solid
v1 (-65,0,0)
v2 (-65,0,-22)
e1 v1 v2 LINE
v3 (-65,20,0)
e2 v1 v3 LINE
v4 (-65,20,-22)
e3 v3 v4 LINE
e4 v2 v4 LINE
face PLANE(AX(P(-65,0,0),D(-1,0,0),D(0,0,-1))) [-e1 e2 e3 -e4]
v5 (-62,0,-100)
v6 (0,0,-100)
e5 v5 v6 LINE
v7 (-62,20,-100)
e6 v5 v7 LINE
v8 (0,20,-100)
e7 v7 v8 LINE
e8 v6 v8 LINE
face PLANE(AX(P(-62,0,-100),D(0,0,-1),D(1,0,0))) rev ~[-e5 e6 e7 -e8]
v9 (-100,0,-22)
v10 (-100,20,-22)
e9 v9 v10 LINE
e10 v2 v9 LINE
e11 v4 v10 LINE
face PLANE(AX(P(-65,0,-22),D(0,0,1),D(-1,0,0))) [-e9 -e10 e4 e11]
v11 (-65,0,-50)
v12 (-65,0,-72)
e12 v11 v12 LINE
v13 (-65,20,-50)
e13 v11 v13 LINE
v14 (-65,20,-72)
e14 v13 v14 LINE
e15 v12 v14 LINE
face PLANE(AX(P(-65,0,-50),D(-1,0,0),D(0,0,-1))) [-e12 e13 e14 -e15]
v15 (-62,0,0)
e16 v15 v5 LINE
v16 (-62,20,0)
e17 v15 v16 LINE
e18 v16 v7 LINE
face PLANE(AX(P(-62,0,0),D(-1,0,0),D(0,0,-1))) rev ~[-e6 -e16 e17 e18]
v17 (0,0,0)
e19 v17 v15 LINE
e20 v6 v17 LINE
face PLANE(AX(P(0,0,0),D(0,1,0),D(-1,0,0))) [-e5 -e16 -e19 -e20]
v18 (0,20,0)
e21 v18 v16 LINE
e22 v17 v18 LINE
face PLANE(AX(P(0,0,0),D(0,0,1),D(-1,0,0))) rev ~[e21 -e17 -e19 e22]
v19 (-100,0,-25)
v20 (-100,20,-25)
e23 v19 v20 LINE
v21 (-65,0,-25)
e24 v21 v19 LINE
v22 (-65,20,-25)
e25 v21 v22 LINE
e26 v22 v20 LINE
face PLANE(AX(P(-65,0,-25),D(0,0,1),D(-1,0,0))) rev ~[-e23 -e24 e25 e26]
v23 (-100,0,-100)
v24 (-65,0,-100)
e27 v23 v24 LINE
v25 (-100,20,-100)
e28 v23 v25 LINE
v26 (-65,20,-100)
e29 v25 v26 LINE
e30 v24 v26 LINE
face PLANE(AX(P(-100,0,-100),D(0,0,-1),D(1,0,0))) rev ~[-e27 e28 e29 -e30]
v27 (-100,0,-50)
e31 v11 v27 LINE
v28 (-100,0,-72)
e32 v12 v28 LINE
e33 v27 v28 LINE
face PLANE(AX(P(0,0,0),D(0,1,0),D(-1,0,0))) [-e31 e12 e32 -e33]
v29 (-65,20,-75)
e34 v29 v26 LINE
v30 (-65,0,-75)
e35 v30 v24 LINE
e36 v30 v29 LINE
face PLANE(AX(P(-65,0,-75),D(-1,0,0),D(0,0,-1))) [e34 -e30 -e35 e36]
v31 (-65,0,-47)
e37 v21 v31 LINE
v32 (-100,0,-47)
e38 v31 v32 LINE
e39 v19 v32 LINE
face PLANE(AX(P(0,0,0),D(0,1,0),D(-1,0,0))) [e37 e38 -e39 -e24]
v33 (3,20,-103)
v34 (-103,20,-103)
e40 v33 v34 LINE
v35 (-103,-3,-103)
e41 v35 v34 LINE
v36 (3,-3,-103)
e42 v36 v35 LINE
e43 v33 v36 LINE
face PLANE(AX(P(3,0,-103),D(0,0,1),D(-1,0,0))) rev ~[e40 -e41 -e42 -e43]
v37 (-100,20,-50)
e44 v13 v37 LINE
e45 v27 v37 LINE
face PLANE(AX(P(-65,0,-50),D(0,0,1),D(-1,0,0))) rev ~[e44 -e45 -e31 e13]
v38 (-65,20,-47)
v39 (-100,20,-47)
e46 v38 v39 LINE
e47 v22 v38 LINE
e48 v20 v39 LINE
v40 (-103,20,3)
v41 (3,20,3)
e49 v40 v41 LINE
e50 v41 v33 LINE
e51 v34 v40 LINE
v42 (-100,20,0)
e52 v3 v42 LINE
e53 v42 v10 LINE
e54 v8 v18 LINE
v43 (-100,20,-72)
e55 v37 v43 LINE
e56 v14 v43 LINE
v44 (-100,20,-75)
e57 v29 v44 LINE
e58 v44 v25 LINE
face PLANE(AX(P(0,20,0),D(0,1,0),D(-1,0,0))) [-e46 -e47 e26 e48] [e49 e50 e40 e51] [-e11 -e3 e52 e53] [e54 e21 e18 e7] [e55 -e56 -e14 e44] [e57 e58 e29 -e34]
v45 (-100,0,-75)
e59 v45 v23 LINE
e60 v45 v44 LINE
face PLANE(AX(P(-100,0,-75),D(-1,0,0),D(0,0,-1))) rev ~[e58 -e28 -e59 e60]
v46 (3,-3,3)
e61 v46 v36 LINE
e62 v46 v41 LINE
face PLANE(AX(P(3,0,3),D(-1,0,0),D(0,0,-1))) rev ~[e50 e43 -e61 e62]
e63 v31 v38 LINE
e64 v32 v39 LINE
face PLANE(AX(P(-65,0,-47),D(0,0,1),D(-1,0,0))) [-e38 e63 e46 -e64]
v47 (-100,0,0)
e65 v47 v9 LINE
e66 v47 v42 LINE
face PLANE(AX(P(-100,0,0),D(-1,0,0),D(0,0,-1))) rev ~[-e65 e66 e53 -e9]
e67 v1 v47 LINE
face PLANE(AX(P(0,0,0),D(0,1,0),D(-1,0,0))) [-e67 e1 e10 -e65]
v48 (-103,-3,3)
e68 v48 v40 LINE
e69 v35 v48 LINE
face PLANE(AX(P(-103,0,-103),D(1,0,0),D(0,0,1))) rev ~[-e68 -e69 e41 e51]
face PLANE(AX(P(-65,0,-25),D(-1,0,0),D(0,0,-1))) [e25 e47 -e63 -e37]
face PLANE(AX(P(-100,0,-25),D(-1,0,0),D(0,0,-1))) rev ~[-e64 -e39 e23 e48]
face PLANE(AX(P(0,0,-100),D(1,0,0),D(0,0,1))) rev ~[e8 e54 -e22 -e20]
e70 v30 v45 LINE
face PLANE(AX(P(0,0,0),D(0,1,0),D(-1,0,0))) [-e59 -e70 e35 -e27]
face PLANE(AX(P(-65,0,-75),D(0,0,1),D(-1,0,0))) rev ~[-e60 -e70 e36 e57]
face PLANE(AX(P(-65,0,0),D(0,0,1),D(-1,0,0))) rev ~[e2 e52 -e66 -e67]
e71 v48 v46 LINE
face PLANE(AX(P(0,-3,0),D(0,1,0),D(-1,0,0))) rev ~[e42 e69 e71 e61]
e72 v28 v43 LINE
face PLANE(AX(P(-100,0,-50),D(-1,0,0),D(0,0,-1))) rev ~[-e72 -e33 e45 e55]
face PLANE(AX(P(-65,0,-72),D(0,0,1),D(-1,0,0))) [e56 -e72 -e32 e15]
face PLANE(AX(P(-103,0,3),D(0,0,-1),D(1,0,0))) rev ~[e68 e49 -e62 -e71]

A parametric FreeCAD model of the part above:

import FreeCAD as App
import Part
import Sketcher


def add_polygon(sketch, points):
    """Adds a closed chain of lines whose ends are joined by coincident constraints."""
    first, n = sketch.GeometryCount, len(points)
    for a, b in zip(points, points[1:] + points[:1]):
        sketch.addGeometry(Part.LineSegment(App.Vector(*a, 0), App.Vector(*b, 0)), False)
    for i in range(n):
        sketch.addConstraint(Sketcher.Constraint("Coincident", first + i, 2, first + (i + 1) % n, 1))

doc = App.newDocument("Part")
body = doc.addObject("PartDesign::Body", "Body")

sketch1 = body.newObject("Sketcher::SketchObject", "Sketch")
sketch1.AttachmentSupport = (doc.getObject("XZ_Plane"), [""])
sketch1.MapMode = "FlatFace"
add_polygon(sketch1, [(3, -103), (-103, -103), (-103, 3), (3, 3)])
add_polygon(sketch1, [(-65, -22), (-65, 0), (-100, 0), (-100, -22)])
add_polygon(sketch1, [(-65, -47), (-65, -25), (-100, -25), (-100, -47)])
add_polygon(sketch1, [(-65, -72), (-65, -50), (-100, -50), (-100, -72)])
add_polygon(sketch1, [(-65, -100), (-65, -75), (-100, -75), (-100, -100)])
add_polygon(sketch1, [(-62, 0), (-62, -100), (0, -100), (0, 0)])
sketch1.addConstraint([
    Sketcher.Constraint("Horizontal", 0),
    Sketcher.Constraint("Vertical", 1),
    Sketcher.Constraint("Horizontal", 2),
    Sketcher.Constraint("Vertical", 3),
    Sketcher.Constraint("Vertical", 4),
    Sketcher.Constraint("Horizontal", 5),
    Sketcher.Constraint("Vertical", 6),
    Sketcher.Constraint("Horizontal", 7),
    Sketcher.Constraint("Vertical", 8),
    Sketcher.Constraint("Horizontal", 9),
    Sketcher.Constraint("Vertical", 10),
    Sketcher.Constraint("Horizontal", 11),
    Sketcher.Constraint("Vertical", 12),
    Sketcher.Constraint("Horizontal", 13),
    Sketcher.Constraint("Vertical", 14),
    Sketcher.Constraint("Horizontal", 15),
    Sketcher.Constraint("Vertical", 16),
    Sketcher.Constraint("Horizontal", 17),
    Sketcher.Constraint("Vertical", 18),
    Sketcher.Constraint("Horizontal", 19),
    Sketcher.Constraint("Vertical", 20),
    Sketcher.Constraint("Horizontal", 21),
    Sketcher.Constraint("Vertical", 22),
    Sketcher.Constraint("Horizontal", 23),
    Sketcher.Constraint("Coincident", 22, 2, -1, 1),
    Sketcher.Constraint("PointOnObject", 4, 2, -1),
    Sketcher.Constraint("Horizontal", 19, 2, 20, 2),
    Sketcher.Constraint("Vertical", 7, 2, 8, 2),
    Sketcher.Constraint("Vertical", 6, 2, 9, 2),
    Sketcher.Constraint("Vertical", 11, 2, 12, 2),
    Sketcher.Constraint("Vertical", 10, 2, 13, 2),
    Sketcher.Constraint("Vertical", 15, 2, 16, 2),
    Sketcher.Constraint("Vertical", 14, 2, 17, 2),
    Sketcher.Constraint("Equal", 2, 1),
    Sketcher.Constraint("Equal", 6, 8),
    Sketcher.Constraint("Equal", 10, 12),
    Sketcher.Constraint("DistanceX", 5, 2, 5, 1, 35.0),
    Sketcher.Constraint("DistanceY", 20, 2, 20, 1, 100.0),
    Sketcher.Constraint("DistanceY", -1, 1, 1, 2, 3.0),
    Sketcher.Constraint("DistanceX", -1, 1, 2, 2, 3.0),
    Sketcher.Constraint("DistanceX", 5, 2, -1, 1, 100.0),
    Sketcher.Constraint("DistanceX", 1, 2, 5, 2, 3.0),
    Sketcher.Constraint("DistanceY", 8, 2, 7, 2, 3.0),
    Sketcher.Constraint("DistanceY", 12, 2, 11, 2, 3.0),
    Sketcher.Constraint("DistanceY", 16, 2, 15, 2, 3.0),
    Sketcher.Constraint("DistanceX", 19, 2, 20, 2, 3.0),
    Sketcher.Constraint("DistanceY", 4, 1, 4, 2, 22.0),
])
pad1 = body.newObject("PartDesign::Pad", "Pad")
pad1.Profile = sketch1
pad1.Length = 20
pad1.Reversed = True

sketch2 = body.newObject("Sketcher::SketchObject", "Sketch001")
sketch2.AttachmentSupport = (doc.getObject("XZ_Plane"), [""])
sketch2.MapMode = "FlatFace"
add_polygon(sketch2, [(3, -103), (-103, -103), (-103, 3), (3, 3)])
sketch2.addConstraint([
    Sketcher.Constraint("Horizontal", 0),
    Sketcher.Constraint("Vertical", 1),
    Sketcher.Constraint("Horizontal", 2),
    Sketcher.Constraint("Vertical", 3),
    Sketcher.Constraint("Equal", 2, 1),
    Sketcher.Constraint("DistanceY", -1, 1, 1, 2, 3.0),
    Sketcher.Constraint("DistanceX", -1, 1, 2, 2, 3.0),
    Sketcher.Constraint("DistanceX", 0, 2, 0, 1, 106.0),
])
pad2 = body.newObject("PartDesign::Pad", "Pad001")
pad2.Profile = sketch2
pad2.Length = 3

doc.recompute()
